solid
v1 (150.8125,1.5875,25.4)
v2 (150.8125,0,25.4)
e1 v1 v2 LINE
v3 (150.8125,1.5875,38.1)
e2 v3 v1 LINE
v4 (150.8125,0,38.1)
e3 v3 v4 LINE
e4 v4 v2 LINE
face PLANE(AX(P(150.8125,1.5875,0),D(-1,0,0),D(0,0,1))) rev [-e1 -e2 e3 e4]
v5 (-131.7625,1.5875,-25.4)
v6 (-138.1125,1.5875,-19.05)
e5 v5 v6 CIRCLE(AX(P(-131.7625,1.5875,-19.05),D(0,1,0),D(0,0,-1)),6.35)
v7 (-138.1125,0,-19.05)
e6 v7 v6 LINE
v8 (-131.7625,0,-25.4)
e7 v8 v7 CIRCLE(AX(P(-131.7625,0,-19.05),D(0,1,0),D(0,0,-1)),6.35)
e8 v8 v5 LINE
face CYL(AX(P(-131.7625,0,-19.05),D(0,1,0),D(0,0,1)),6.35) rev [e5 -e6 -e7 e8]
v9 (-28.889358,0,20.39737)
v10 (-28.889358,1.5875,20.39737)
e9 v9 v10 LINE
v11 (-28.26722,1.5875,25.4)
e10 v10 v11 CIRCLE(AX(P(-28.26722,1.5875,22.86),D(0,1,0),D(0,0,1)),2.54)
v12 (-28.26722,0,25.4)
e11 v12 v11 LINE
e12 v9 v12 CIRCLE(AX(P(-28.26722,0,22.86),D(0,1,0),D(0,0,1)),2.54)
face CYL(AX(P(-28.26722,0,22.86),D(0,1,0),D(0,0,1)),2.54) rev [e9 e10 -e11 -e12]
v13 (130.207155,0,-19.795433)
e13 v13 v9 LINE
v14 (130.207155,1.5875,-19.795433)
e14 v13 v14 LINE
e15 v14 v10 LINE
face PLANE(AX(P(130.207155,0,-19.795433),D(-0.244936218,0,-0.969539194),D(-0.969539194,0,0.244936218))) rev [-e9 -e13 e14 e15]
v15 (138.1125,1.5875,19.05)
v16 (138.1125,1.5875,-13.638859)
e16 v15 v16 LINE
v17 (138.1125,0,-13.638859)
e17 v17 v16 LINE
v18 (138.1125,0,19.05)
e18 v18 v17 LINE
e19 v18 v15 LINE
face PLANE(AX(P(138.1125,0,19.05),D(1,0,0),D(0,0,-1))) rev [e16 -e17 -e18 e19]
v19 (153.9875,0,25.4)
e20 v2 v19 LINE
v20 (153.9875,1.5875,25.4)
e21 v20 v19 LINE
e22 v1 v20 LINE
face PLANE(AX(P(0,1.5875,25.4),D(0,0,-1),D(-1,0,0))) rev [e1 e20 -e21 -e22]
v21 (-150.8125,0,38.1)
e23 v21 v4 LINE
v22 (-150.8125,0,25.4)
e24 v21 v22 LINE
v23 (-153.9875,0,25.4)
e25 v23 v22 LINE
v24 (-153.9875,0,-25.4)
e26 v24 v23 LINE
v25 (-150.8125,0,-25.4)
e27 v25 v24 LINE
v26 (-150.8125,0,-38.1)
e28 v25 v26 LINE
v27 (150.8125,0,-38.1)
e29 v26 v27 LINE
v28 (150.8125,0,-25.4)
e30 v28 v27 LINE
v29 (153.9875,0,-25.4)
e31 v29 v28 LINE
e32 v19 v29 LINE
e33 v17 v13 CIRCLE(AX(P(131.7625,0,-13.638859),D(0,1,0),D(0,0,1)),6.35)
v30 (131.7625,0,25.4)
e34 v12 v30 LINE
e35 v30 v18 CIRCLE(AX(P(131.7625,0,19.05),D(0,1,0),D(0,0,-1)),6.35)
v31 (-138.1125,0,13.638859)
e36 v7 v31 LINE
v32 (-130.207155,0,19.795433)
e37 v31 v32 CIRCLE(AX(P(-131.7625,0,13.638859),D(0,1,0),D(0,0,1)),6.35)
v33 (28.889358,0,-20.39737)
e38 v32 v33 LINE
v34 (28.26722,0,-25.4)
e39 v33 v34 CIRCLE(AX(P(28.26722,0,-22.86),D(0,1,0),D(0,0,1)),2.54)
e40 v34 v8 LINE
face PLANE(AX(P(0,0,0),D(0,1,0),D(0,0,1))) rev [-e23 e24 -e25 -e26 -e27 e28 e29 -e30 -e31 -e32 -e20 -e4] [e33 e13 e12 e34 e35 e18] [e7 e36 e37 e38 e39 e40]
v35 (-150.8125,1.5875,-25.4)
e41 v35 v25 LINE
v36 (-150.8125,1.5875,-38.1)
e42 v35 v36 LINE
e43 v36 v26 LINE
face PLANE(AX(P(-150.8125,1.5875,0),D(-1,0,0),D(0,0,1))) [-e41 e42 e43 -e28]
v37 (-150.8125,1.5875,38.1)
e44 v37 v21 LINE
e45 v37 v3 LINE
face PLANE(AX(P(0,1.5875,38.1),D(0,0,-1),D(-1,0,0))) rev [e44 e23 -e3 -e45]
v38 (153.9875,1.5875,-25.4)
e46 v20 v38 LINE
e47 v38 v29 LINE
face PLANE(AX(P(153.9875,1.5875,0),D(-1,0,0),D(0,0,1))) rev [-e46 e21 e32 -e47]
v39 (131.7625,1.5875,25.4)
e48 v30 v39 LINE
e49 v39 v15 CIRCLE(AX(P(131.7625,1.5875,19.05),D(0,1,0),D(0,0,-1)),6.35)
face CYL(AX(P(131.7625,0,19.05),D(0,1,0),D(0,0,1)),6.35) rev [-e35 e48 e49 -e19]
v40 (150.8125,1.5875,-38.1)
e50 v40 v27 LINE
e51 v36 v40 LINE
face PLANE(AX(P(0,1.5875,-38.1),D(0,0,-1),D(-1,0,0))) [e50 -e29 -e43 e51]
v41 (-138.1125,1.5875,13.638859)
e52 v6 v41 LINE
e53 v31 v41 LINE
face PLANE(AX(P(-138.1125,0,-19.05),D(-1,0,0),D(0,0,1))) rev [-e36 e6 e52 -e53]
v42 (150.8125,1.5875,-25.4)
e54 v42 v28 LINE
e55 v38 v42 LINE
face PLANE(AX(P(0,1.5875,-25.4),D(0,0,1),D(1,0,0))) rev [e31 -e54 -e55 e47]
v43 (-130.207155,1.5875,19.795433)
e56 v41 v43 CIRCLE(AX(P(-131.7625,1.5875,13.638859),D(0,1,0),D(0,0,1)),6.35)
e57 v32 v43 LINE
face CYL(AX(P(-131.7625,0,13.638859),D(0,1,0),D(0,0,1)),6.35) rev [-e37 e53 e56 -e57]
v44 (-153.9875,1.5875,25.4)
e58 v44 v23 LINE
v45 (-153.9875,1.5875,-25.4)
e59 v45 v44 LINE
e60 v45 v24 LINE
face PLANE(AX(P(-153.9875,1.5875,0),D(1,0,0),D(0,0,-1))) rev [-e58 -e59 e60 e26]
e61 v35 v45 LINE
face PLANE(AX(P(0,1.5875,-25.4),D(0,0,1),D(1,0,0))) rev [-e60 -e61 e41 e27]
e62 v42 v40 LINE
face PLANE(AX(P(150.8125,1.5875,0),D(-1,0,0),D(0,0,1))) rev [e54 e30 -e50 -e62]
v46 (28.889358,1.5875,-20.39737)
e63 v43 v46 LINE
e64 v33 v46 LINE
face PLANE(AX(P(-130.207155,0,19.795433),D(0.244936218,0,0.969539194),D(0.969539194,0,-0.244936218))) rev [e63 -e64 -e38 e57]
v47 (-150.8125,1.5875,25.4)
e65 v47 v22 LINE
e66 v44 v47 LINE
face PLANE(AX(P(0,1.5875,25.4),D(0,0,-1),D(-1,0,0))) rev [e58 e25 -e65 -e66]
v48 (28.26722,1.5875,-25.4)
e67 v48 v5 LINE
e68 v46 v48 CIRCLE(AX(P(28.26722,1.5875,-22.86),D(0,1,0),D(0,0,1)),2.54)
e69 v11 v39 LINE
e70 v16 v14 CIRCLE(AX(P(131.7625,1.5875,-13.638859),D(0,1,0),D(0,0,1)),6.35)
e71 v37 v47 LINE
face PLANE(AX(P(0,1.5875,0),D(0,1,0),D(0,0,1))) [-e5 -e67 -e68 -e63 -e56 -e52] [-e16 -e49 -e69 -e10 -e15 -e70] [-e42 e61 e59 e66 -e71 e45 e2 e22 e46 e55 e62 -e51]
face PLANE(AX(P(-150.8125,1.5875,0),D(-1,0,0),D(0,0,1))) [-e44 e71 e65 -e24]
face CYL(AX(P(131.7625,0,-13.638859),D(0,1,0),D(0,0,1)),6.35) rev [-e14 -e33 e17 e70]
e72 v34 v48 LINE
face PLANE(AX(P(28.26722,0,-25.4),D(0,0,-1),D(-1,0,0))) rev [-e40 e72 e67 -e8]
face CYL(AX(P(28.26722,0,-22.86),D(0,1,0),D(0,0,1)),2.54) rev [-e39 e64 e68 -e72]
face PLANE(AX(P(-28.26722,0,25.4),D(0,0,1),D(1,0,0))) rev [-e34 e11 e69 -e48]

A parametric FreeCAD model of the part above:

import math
import FreeCAD as App
import Part
import Sketcher
from FreeCAD import Vector
Q = App.Units.Quantity


def add_polygon(sketch, points):
    """Adds a closed chain of lines whose ends are joined by coincident constraints."""
    first, n = sketch.GeometryCount, len(points)
    for a, b in zip(points, points[1:] + points[:1]):
        sketch.addGeometry(Part.LineSegment(App.Vector(*a, 0), App.Vector(*b, 0)), False)
    for i in range(n):
        sketch.addConstraint(Sketcher.Constraint("Coincident", first + i, 2, first + (i + 1) % n, 1))

doc = App.newDocument("Part")
body = doc.addObject("PartDesign::Body", "Body")

# Sketch on XZ plane
sketch1 = body.newObject("Sketcher::SketchObject", "Sketch")
sketch1.AttachmentSupport = (doc.getObject("XZ_Plane"), [""])
sketch1.MapMode = "FlatFace"
add_polygon(sketch1, [(-150.8, -25.4), (-154, -25.4), (-154, 25.4), (-150.8, 25.4), (-150.8, 38.1), (150.8, 38.1), (150.8, 25.4), (154, 25.4), (154, -25.4), (150.8, -25.4), (150.8, -38.1), (-150.8, -38.1)])  # lines 0-11
sketch1.addConstraint(Sketcher.Constraint("Horizontal", 0))
sketch1.addConstraint(Sketcher.Constraint("Vertical", 1))
sketch1.addConstraint(Sketcher.Constraint("Horizontal", 2))
sketch1.addConstraint(Sketcher.Constraint("Vertical", 3))
sketch1.addConstraint(Sketcher.Constraint("Horizontal", 4))
sketch1.addConstraint(Sketcher.Constraint("Vertical", 5))
sketch1.addConstraint(Sketcher.Constraint("Horizontal", 6))
sketch1.addConstraint(Sketcher.Constraint("Vertical", 7))
sketch1.addConstraint(Sketcher.Constraint("Horizontal", 8))
sketch1.addConstraint(Sketcher.Constraint("Vertical", 9))
sketch1.addConstraint(Sketcher.Constraint("Horizontal", 10))
sketch1.addConstraint(Sketcher.Constraint("Vertical", 11))
sketch1.addConstraint(Sketcher.Constraint("Symmetric", 0, 2, 6, 2, -1, 1))
sketch1.addConstraint(Sketcher.Constraint("Symmetric", 2, 2, 8, 2, -1, 1))
sketch1.addConstraint(Sketcher.Constraint("Symmetric", 4, 2, 10, 2, -1, 1))
sketch1.addConstraint(Sketcher.Constraint("Symmetric", 2, 2, 5, 2, -2))
sketch1.addConstraint(Sketcher.Constraint("DistanceY", 1, 1, 1, 2, Q("2 in")))
sketch1.addConstraint(Sketcher.Constraint("DistanceY", 3, 1, 3, 2, Q("0.5 in")))
sketch1.addConstraint(Sketcher.Constraint("DistanceX", 1, 2, 4, 2, Q("12 in")))
sketch1.addConstraint(Sketcher.Constraint("DistanceX", 0, 2, 0, 1, Q("0.125 in")))
pad1 = body.newObject("PartDesign::Pad", "Pad")
pad1.Profile = sketch1
pad1.Length = Q("0.0625 in")
pad1.Reversed = True

# Sketch on XZ plane
sketch2 = body.newObject("Sketcher::SketchObject", "Sketch001")
sketch2.AttachmentSupport = (doc.getObject("XZ_Plane"), [""])
sketch2.MapMode = "FlatFace"
sketch2.AttachmentOffset = App.Placement(Vector(0, 0, -0.0625 * 25.4), App.Rotation())
sketch2.addGeometry(Part.LineSegment(Vector(-138.1, -19.1, 0), Vector(-138.1, 13.6, 0)), False)
sketch2.addGeometry(Part.ArcOfCircle(Part.Circle(Vector(-131.8, 13.6, 0), Vector(0, 0, 1), 6.3), math.radians(76), math.radians(180)), False)
sketch2.addGeometry(Part.LineSegment(Vector(-130.2, 19.8, 0), Vector(28.9, -20.4, 0)), False)
sketch2.addGeometry(Part.ArcOfCircle(Part.Circle(Vector(28.3, -22.9, 0), Vector(0, 0, 1), 2.5), math.radians(-90), math.radians(76)), False)
sketch2.addGeometry(Part.LineSegment(Vector(28.3, -25.4, 0), Vector(-131.8, -25.4, 0)), False)
sketch2.addGeometry(Part.ArcOfCircle(Part.Circle(Vector(-131.8, -19.1, 0), Vector(0, 0, 1), 6.3), math.radians(180), math.radians(270)), False)
sketch2.addGeometry(Part.LineSegment(Vector(-28.3, 25.4, 0), Vector(131.8, 25.4, 0)), False)
sketch2.addGeometry(Part.ArcOfCircle(Part.Circle(Vector(131.8, 19.1, 0), Vector(0, 0, 1), 6.3), math.radians(0), math.radians(90)), False)
sketch2.addGeometry(Part.LineSegment(Vector(138.1, 19.1, 0), Vector(138.1, -13.6, 0)), False)
sketch2.addGeometry(Part.ArcOfCircle(Part.Circle(Vector(131.8, -13.6, 0), Vector(0, 0, 1), 6.3), math.radians(-104), math.radians(0)), False)
sketch2.addGeometry(Part.LineSegment(Vector(130.2, -19.8, 0), Vector(-28.9, 20.4, 0)), False)
sketch2.addGeometry(Part.ArcOfCircle(Part.Circle(Vector(-28.3, 22.9, 0), Vector(0, 0, 1), 2.5), math.radians(90), math.radians(256)), False)
sketch2.addConstraint(Sketcher.Constraint("Tangent", 0, 2, 1, 2))
sketch2.addConstraint(Sketcher.Constraint("Tangent", 1, 1, 2, 1))
sketch2.addConstraint(Sketcher.Constraint("Tangent", 2, 2, 3, 2))
sketch2.addConstraint(Sketcher.Constraint("Tangent", 3, 1, 4, 1))
sketch2.addConstraint(Sketcher.Constraint("Tangent", 4, 2, 5, 2))
sketch2.addConstraint(Sketcher.Constraint("Tangent", 5, 1, 0, 1))
sketch2.addConstraint(Sketcher.Constraint("Tangent", 6, 2, 7, 2))
sketch2.addConstraint(Sketcher.Constraint("Tangent", 7, 1, 8, 1))
sketch2.addConstraint(Sketcher.Constraint("Tangent", 8, 2, 9, 2))
sketch2.addConstraint(Sketcher.Constraint("Tangent", 9, 1, 10, 1))
sketch2.addConstraint(Sketcher.Constraint("Tangent", 10, 2, 11, 2))
sketch2.addConstraint(Sketcher.Constraint("Tangent", 11, 1, 6, 1))
sketch2.addConstraint(Sketcher.Constraint("Vertical", 0))
sketch2.addConstraint(Sketcher.Constraint("Horizontal", 4))
sketch2.addConstraint(Sketcher.Constraint("Horizontal", 6))
sketch2.addConstraint(Sketcher.Constraint("Vertical", 8))
sketch2.addConstraint(Sketcher.Constraint("Equal", 1, 5))
sketch2.addConstraint(Sketcher.Constraint("Equal", 5, 7))
sketch2.addConstraint(Sketcher.Constraint("Equal", 7, 9))
sketch2.addConstraint(Sketcher.Constraint("Equal", 3, 11))
sketch2.addConstraint(Sketcher.Constraint("Symmetric", 5, 3, 7, 3, -1, 1))
sketch2.addConstraint(Sketcher.Constraint("Symmetric", 1, 1, 9, 1, -1, 1))
sketch2.addConstraint(Sketcher.Constraint("Radius", 3, Q("0.1 in")))
sketch2.addConstraint(Sketcher.Constraint("Radius", 1, Q("0.25 in")))
sketch2.addConstraint(Sketcher.Constraint("DistanceY", 3, 1, -1, 1, Q("1 in")))
sketch2.addConstraint(Sketcher.Constraint("DistanceX", 1, 3, -1, 1, Q("5.1875 in")))
sketch2.addConstraint(Sketcher.Constraint("DistanceX", 4, 2, 4, 1, Q("160.02972 mm")))
sketch2.addConstraint(Sketcher.Constraint("DistanceY", 0, 1, 0, 2, Q("32.688859 mm")))
pocket1 = body.newObject("PartDesign::Pocket", "Pocket")
pocket1.Profile = sketch2
pocket1.Type = "ThroughAll"
pocket1.Reversed = True

doc.recompute()
